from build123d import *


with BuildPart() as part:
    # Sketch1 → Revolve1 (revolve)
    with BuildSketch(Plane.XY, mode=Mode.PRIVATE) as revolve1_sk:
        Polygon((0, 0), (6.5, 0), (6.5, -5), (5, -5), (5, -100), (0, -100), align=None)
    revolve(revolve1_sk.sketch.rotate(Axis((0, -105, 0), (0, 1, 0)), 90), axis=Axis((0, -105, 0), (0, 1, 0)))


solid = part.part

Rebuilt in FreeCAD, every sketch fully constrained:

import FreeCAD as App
import Part
import Sketcher
Q = App.Units.Quantity

doc = App.newDocument("Part")
body = doc.addObject("PartDesign::Body", "Body")

sketch1 = body.newObject("Sketcher::SketchObject", "Sketch")
sketch1.AttachmentSupport = (doc.getObject("XY_Plane"), [""])
sketch1.MapMode = "FlatFace"
sketch1.addGeometry(Part.LineSegment(App.Vector(6.5, 0, 0), App.Vector(0, 0, 0)), False)
sketch1.addGeometry(Part.LineSegment(App.Vector(0, 0, 0), App.Vector(0, -100, 0)), False)
sketch1.addGeometry(Part.LineSegment(App.Vector(0, -100, 0), App.Vector(5, -100, 0)), False)
sketch1.addGeometry(Part.LineSegment(App.Vector(5, -100, 0), App.Vector(5, -5, 0)), False)
sketch1.addGeometry(Part.LineSegment(App.Vector(5, -5, 0), App.Vector(6.5, -5, 0)), False)
sketch1.addGeometry(Part.LineSegment(App.Vector(6.5, -5, 0), App.Vector(6.5, 0, 0)), False)
sketch1.addConstraint(Sketcher.Constraint("Coincident", 0, 2, 1, 1))
sketch1.addConstraint(Sketcher.Constraint("Coincident", 1, 2, 2, 1))
sketch1.addConstraint(Sketcher.Constraint("Coincident", 2, 2, 3, 1))
sketch1.addConstraint(Sketcher.Constraint("Coincident", 3, 2, 4, 1))
sketch1.addConstraint(Sketcher.Constraint("Coincident", 4, 2, 5, 1))
sketch1.addConstraint(Sketcher.Constraint("Coincident", 5, 2, 0, 1))
sketch1.addConstraint(Sketcher.Constraint("Horizontal", 0))
sketch1.addConstraint(Sketcher.Constraint("Vertical", 1))
sketch1.addConstraint(Sketcher.Constraint("Horizontal", 2))
sketch1.addConstraint(Sketcher.Constraint("Vertical", 3))
sketch1.addConstraint(Sketcher.Constraint("Horizontal", 4))
sketch1.addConstraint(Sketcher.Constraint("Vertical", 5))
sketch1.addConstraint(Sketcher.Constraint("Coincident", 0, 2, -1, 1))
sketch1.addConstraint(Sketcher.Constraint("Equal", 2, 5))
sketch1.addConstraint(Sketcher.Constraint("DistanceX", 2, 1, 2, 2, Q("5 mm")))
sketch1.addConstraint(Sketcher.Constraint("DistanceY", 1, 2, 1, 1, Q("100 mm")))
sketch1.addConstraint(Sketcher.Constraint("DistanceX", 0, 2, 0, 1, Q("6.5 mm")))
revolution = body.newObject("PartDesign::Revolution", "Revolution")
revolution.Profile = sketch1
revolution.ReferenceAxis = (sketch1, ["V_Axis"])
revolution.Angle = 360

doc.recompute()
